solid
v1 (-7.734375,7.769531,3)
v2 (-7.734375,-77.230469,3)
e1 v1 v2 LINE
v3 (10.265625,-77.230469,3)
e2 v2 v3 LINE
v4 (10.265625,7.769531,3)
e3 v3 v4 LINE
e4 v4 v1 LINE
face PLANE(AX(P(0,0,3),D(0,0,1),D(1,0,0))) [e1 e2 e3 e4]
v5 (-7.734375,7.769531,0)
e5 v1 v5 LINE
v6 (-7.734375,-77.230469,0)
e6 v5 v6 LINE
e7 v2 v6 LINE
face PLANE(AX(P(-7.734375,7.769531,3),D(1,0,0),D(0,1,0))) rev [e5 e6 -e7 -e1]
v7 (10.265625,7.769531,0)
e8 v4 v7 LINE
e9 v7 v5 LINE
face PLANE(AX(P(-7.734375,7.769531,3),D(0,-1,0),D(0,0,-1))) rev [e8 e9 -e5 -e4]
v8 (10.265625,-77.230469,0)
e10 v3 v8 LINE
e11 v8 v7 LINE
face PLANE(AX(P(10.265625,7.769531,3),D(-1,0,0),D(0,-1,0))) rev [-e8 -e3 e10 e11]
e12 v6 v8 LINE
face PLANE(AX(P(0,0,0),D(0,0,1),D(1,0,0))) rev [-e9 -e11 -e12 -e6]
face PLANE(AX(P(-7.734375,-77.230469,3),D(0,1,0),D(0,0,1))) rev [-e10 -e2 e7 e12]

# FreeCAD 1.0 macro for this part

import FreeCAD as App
import Part
import Sketcher

doc = App.newDocument("Part")
body = doc.addObject("PartDesign::Body", "Body")

# Sketch on XY plane
sketch1 = body.newObject("Sketcher::SketchObject", "Sketch")
sketch1.AttachmentSupport = (doc.getObject("XY_Plane"), [""])
sketch1.MapMode = "FlatFace"
sketch1.addGeometry([
    Part.LineSegment(App.Vector(-8, 8, 0), App.Vector(-8, -77, 0)),
    Part.LineSegment(App.Vector(-8, -77, 0), App.Vector(10, -77, 0)),
    Part.LineSegment(App.Vector(10, -77, 0), App.Vector(10, 8, 0)),
    Part.LineSegment(App.Vector(10, 8, 0), App.Vector(-8, 8, 0)),
], False)
sketch1.addConstraint([
    Sketcher.Constraint("Coincident", 0, 2, 1, 1),
    Sketcher.Constraint("Coincident", 1, 2, 2, 1),
    Sketcher.Constraint("Coincident", 2, 2, 3, 1),
    Sketcher.Constraint("Coincident", 3, 2, 0, 1),
    Sketcher.Constraint("Vertical", 0),
    Sketcher.Constraint("Horizontal", 1),
    Sketcher.Constraint("Vertical", 2),
    Sketcher.Constraint("Horizontal", 3),
    Sketcher.Constraint("DistanceX", 1, 1, 1, 2, 18.0),
    Sketcher.Constraint("DistanceY", 0, 2, 0, 1, 85.0),
    Sketcher.Constraint("DistanceY", 0, 2, -1, 1, 77.230469),
    Sketcher.Constraint("DistanceX", 0, 2, -1, 1, 7.734375),
])
pad1 = body.newObject("PartDesign::Pad", "Pad")
pad1.Profile = sketch1
pad1.Length = 3

doc.recompute()
